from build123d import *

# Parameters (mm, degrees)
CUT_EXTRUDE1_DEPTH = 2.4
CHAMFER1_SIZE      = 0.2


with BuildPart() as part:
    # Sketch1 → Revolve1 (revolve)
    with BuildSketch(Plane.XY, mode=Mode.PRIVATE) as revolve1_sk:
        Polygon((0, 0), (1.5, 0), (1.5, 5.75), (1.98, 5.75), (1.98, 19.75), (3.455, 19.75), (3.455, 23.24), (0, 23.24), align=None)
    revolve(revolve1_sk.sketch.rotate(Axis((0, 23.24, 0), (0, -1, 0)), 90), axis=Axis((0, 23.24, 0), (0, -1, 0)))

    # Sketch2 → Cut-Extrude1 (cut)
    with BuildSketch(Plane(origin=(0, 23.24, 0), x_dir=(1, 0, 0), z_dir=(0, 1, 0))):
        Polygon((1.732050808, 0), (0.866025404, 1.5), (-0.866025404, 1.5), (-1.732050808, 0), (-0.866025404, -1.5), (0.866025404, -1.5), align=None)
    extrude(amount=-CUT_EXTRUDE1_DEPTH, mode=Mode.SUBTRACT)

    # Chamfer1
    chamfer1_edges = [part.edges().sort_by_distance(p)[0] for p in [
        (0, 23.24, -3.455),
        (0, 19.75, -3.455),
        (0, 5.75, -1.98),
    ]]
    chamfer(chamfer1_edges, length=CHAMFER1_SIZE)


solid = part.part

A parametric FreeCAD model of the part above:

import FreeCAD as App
import Part
import Sketcher
from FreeCAD import Vector
Q = App.Units.Quantity


def edges_at(feature, points):
    """Names of the edges that pass closest to the given points."""
    edges = feature.Shape.Edges
    near = lambda p: min(range(len(edges)), key=lambda i: edges[i].distToShape(Part.Vertex(*p))[0])
    return sorted({f"Edge{near(p) + 1}" for p in points})

doc = App.newDocument("Part")
body = doc.addObject("PartDesign::Body", "Body")

# Sketch on XY plane
sketch1 = body.newObject("Sketcher::SketchObject", "Sketch")
sketch1.AttachmentSupport = (doc.getObject("XY_Plane"), [""])
sketch1.MapMode = "FlatFace"
sketch1.addGeometry(Part.LineSegment(Vector(0, 0, 0), Vector(1.5, 0, 0)), False)
sketch1.addGeometry(Part.LineSegment(Vector(1.5, 0, 0), Vector(1.5, 5.75, 0)), False)
sketch1.addGeometry(Part.LineSegment(Vector(1.5, 5.75, 0), Vector(1.98, 5.75, 0)), False)
sketch1.addGeometry(Part.LineSegment(Vector(1.98, 5.75, 0), Vector(1.98, 19.75, 0)), False)
sketch1.addGeometry(Part.LineSegment(Vector(1.98, 19.75, 0), Vector(3.455, 19.75, 0)), False)
sketch1.addGeometry(Part.LineSegment(Vector(3.455, 19.75, 0), Vector(3.455, 23.24, 0)), False)
sketch1.addGeometry(Part.LineSegment(Vector(3.455, 23.24, 0), Vector(0, 23.24, 0)), False)
sketch1.addGeometry(Part.LineSegment(Vector(0, 23.24, 0), Vector(0, 0, 0)), False)
sketch1.addConstraint(Sketcher.Constraint("Coincident", 0, 2, 1, 1))
sketch1.addConstraint(Sketcher.Constraint("Coincident", 1, 2, 2, 1))
sketch1.addConstraint(Sketcher.Constraint("Coincident", 2, 2, 3, 1))
sketch1.addConstraint(Sketcher.Constraint("Coincident", 3, 2, 4, 1))
sketch1.addConstraint(Sketcher.Constraint("Coincident", 4, 2, 5, 1))
sketch1.addConstraint(Sketcher.Constraint("Coincident", 5, 2, 6, 1))
sketch1.addConstraint(Sketcher.Constraint("Coincident", 6, 2, 7, 1))
sketch1.addConstraint(Sketcher.Constraint("Coincident", 7, 2, 0, 1))
sketch1.addConstraint(Sketcher.Constraint("Horizontal", 0))
sketch1.addConstraint(Sketcher.Constraint("Vertical", 1))
sketch1.addConstraint(Sketcher.Constraint("Horizontal", 2))
sketch1.addConstraint(Sketcher.Constraint("Vertical", 3))
sketch1.addConstraint(Sketcher.Constraint("Horizontal", 4))
sketch1.addConstraint(Sketcher.Constraint("Vertical", 5))
sketch1.addConstraint(Sketcher.Constraint("Horizontal", 6))
sketch1.addConstraint(Sketcher.Constraint("Vertical", 7))
sketch1.addConstraint(Sketcher.Constraint("Coincident", 7, 2, -1, 1))
sketch1.addConstraint(Sketcher.Constraint("DistanceY", 3, 1, 3, 2, Q("14 mm")))
sketch1.addConstraint(Sketcher.Constraint("DistanceX", 0, 1, 0, 2, Q("1.5 mm")))
sketch1.addConstraint(Sketcher.Constraint("DistanceX", 2, 1, 2, 2, Q("0.48 mm")))
sketch1.addConstraint(Sketcher.Constraint("DistanceY", 1, 1, 1, 2, Q("5.75 mm")))
sketch1.addConstraint(Sketcher.Constraint("DistanceY", 5, 1, 5, 2, Q("3.49 mm")))
sketch1.addConstraint(Sketcher.Constraint("DistanceX", 4, 1, 4, 2, Q("1.475 mm")))
revolution = body.newObject("PartDesign::Revolution", "Revolution")
revolution.Profile = sketch1
revolution.ReferenceAxis = (sketch1, ["V_Axis"])
revolution.Angle = 360

# Sketch on XZ plane
sketch2 = body.newObject("Sketcher::SketchObject", "Sketch001")
sketch2.AttachmentSupport = (doc.getObject("XZ_Plane"), [""])
sketch2.MapMode = "FlatFace"
sketch2.AttachmentOffset = App.Placement(Vector(0, 0, -23.24), App.Rotation())
sketch2.addGeometry(Part.LineSegment(Vector(1.732051, 0, 0), Vector(0.866025, -1.5, 0)), False)
sketch2.addGeometry(Part.LineSegment(Vector(0.866025, -1.5, 0), Vector(-0.866025, -1.5, 0)), False)
sketch2.addGeometry(Part.LineSegment(Vector(-0.866025, -1.5, 0), Vector(-1.732051, 0, 0)), False)
sketch2.addGeometry(Part.LineSegment(Vector(-1.732051, 0, 0), Vector(-0.866025, 1.5, 0)), False)
sketch2.addGeometry(Part.LineSegment(Vector(-0.866025, 1.5, 0), Vector(0.866025, 1.5, 0)), False)
sketch2.addGeometry(Part.LineSegment(Vector(0.866025, 1.5, 0), Vector(1.732051, 0, 0)), False)
sketch2.addConstraint(Sketcher.Constraint("Coincident", 0, 2, 1, 1))
sketch2.addConstraint(Sketcher.Constraint("Coincident", 1, 2, 2, 1))
sketch2.addConstraint(Sketcher.Constraint("Coincident", 2, 2, 3, 1))
sketch2.addConstraint(Sketcher.Constraint("Coincident", 3, 2, 4, 1))
sketch2.addConstraint(Sketcher.Constraint("Coincident", 4, 2, 5, 1))
sketch2.addConstraint(Sketcher.Constraint("Coincident", 5, 2, 0, 1))
sketch2.addConstraint(Sketcher.Constraint("Horizontal", 1))
sketch2.addConstraint(Sketcher.Constraint("Horizontal", 4))
sketch2.addConstraint(Sketcher.Constraint("Symmetric", 0, 2, 3, 2, -1, 1))
sketch2.addConstraint(Sketcher.Constraint("Symmetric", 2, 2, 5, 2, -1, 1))
sketch2.addConstraint(Sketcher.Constraint("PointOnObject", 2, 2, -1))
sketch2.addConstraint(Sketcher.Constraint("Parallel", 2, 5))
sketch2.addConstraint(Sketcher.Constraint("Vertical", 1, 2, 3, 2))
sketch2.addConstraint(Sketcher.Constraint("Angle", 0, Q("-120 deg")))
sketch2.addConstraint(Sketcher.Constraint("DistanceY", 1, 2, 3, 2, Q("3 mm")))
sketch2.addConstraint(Sketcher.Constraint("DistanceX", 1, 2, 1, 1, Q("1.732051 mm")))
pocket1 = body.newObject("PartDesign::Pocket", "Pocket")
pocket1.Profile = sketch2
pocket1.Length = 2.4
pocket1.Reversed = True
doc.recompute()

chamfer = body.newObject("PartDesign::Chamfer", "Chamfer")
chamfer.Base = (pocket1, edges_at(pocket1, [(0, 23.24, -3.455), (0, 19.75, -3.455), (0, 5.75, -1.98)]))
chamfer.Size = 0.2

doc.recompute()
